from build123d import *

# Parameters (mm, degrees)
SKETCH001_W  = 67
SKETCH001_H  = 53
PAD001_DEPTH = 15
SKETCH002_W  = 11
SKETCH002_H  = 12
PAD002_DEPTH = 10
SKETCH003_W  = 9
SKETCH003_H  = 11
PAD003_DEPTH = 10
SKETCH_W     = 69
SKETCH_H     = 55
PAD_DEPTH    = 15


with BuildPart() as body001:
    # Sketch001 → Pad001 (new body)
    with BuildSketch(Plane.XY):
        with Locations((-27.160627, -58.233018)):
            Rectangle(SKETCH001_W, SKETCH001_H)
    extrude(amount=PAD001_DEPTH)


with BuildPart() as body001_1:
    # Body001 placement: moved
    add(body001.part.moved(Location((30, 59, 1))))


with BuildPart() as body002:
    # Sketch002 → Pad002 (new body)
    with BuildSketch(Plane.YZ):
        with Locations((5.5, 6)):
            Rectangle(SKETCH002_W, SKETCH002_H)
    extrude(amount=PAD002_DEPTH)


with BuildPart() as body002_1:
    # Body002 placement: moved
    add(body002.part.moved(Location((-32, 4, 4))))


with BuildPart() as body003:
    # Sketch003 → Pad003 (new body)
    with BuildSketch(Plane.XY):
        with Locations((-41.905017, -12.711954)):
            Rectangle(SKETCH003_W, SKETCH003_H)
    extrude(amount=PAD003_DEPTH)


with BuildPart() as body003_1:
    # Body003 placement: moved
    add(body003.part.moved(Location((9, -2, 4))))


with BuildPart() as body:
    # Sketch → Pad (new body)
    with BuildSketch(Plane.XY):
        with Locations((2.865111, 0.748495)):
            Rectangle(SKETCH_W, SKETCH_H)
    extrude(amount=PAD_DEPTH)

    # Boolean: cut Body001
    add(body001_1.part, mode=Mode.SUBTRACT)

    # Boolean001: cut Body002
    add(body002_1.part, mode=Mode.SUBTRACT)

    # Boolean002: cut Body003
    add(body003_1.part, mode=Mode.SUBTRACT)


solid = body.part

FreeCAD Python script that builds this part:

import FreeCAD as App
import Part
import Sketcher

V = App.Vector

doc = App.newDocument("Part")
body = doc.addObject("PartDesign::Body", "Body")

# Sketch on XY plane
sketch1 = body.newObject("Sketcher::SketchObject", "Sketch")
sketch1.AttachmentSupport = (doc.getObject("XY_Plane"), [""])
sketch1.MapMode = "FlatFace"
sketch1.addGeometry([
    Part.LineSegment(V(-61, -32, 0), V(-61, -85, 0)),
    Part.LineSegment(V(-61, -85, 0), V(6, -85, 0)),
    Part.LineSegment(V(6, -85, 0), V(6, -32, 0)),
    Part.LineSegment(V(6, -32, 0), V(-61, -32, 0)),
], False)
sketch1.addConstraint([
    Sketcher.Constraint("Coincident", 0, 2, 1, 1),
    Sketcher.Constraint("Coincident", 1, 2, 2, 1),
    Sketcher.Constraint("Coincident", 2, 2, 3, 1),
    Sketcher.Constraint("Coincident", 3, 2, 0, 1),
    Sketcher.Constraint("Vertical", 0),
    Sketcher.Constraint("Horizontal", 1),
    Sketcher.Constraint("Vertical", 2),
    Sketcher.Constraint("Horizontal", 3),
    Sketcher.Constraint("DistanceX", 1, 1, 1, 2, 67.0),
    Sketcher.Constraint("DistanceY", 0, 2, 0, 1, 53.0),
    Sketcher.Constraint("DistanceY", 0, 2, -1, 1, 84.733018),
    Sketcher.Constraint("DistanceX", 0, 2, -1, 1, 60.660627),
])
pad1 = body.newObject("PartDesign::Pad", "Pad")
pad1.Profile = sketch1
pad1.Length = 15
body2 = doc.addObject("PartDesign::Body", "Body001")
doc.recompute()

body.Placement = App.Placement(V(30, 59, 1), App.Rotation(V(0, 0, 1), 0))
boolean = body2.newObject("PartDesign::Boolean", "Boolean")
boolean.Type = "Fuse"
boolean.addObjects([body])
body3 = doc.addObject("PartDesign::Body", "Body002")

# Sketch on YZ plane
sketch2 = body3.newObject("Sketcher::SketchObject", "Sketch001")
sketch2.AttachmentSupport = (doc.getObject("YZ_Plane002"), [""])
sketch2.MapMode = "FlatFace"
sketch2.addGeometry([
    Part.LineSegment(V(0, 12, 0), V(0, 0, 0)),
    Part.LineSegment(V(0, 0, 0), V(11, 0, 0)),
    Part.LineSegment(V(11, 0, 0), V(11, 12, 0)),
    Part.LineSegment(V(11, 12, 0), V(0, 12, 0)),
], False)
sketch2.addConstraint([
    Sketcher.Constraint("Coincident", 0, 2, 1, 1),
    Sketcher.Constraint("Coincident", 1, 2, 2, 1),
    Sketcher.Constraint("Coincident", 2, 2, 3, 1),
    Sketcher.Constraint("Coincident", 3, 2, 0, 1),
    Sketcher.Constraint("Vertical", 0),
    Sketcher.Constraint("Horizontal", 1),
    Sketcher.Constraint("Vertical", 2),
    Sketcher.Constraint("Horizontal", 3),
    Sketcher.Constraint("Coincident", 0, 2, -1, 1),
    Sketcher.Constraint("DistanceX", 1, 1, 1, 2, 11.0),
    Sketcher.Constraint("DistanceY", 0, 2, 0, 1, 12.0),
])
pad2 = body3.newObject("PartDesign::Pad", "Pad001")
pad2.Profile = sketch2
pad2.Length = 10
body4 = doc.addObject("PartDesign::Body", "Body003")
doc.recompute()

body3.Placement = App.Placement(V(-32, 4, 4), App.Rotation(V(0, 0, 1), 0))
boolean2 = body4.newObject("PartDesign::Boolean", "Boolean001")
boolean2.Type = "Fuse"
boolean2.addObjects([body3])
body5 = doc.addObject("PartDesign::Body", "Body004")

# Sketch on XY plane
sketch3 = body5.newObject("Sketcher::SketchObject", "Sketch002")
sketch3.AttachmentSupport = (doc.getObject("XY_Plane004"), [""])
sketch3.MapMode = "FlatFace"
sketch3.addGeometry([
    Part.LineSegment(V(-46, -7, 0), V(-46, -18, 0)),
    Part.LineSegment(V(-46, -18, 0), V(-37, -18, 0)),
    Part.LineSegment(V(-37, -18, 0), V(-37, -7, 0)),
    Part.LineSegment(V(-37, -7, 0), V(-46, -7, 0)),
], False)
sketch3.addConstraint([
    Sketcher.Constraint("Coincident", 0, 2, 1, 1),
    Sketcher.Constraint("Coincident", 1, 2, 2, 1),
    Sketcher.Constraint("Coincident", 2, 2, 3, 1),
    Sketcher.Constraint("Coincident", 3, 2, 0, 1),
    Sketcher.Constraint("Vertical", 0),
    Sketcher.Constraint("Horizontal", 1),
    Sketcher.Constraint("Vertical", 2),
    Sketcher.Constraint("Horizontal", 3),
    Sketcher.Constraint("DistanceX", 1, 1, 1, 2, 9.0),
    Sketcher.Constraint("DistanceY", 0, 2, 0, 1, 11.0),
    Sketcher.Constraint("DistanceX", 0, 2, -1, 1, 46.405017),
    Sketcher.Constraint("DistanceY", 0, 2, -1, 1, 18.211954),
])
pad3 = body5.newObject("PartDesign::Pad", "Pad002")
pad3.Profile = sketch3
pad3.Length = 10
body6 = doc.addObject("PartDesign::Body", "Body005")
doc.recompute()

body5.Placement = App.Placement(V(9, -2, 4), App.Rotation(V(0, 0, 1), 0))
boolean3 = body6.newObject("PartDesign::Boolean", "Boolean002")
boolean3.Type = "Fuse"
boolean3.addObjects([body5])
body7 = doc.addObject("PartDesign::Body", "Body006")

# Sketch on XY plane
sketch4 = body7.newObject("Sketcher::SketchObject", "Sketch003")
sketch4.AttachmentSupport = (doc.getObject("XY_Plane006"), [""])
sketch4.MapMode = "FlatFace"
sketch4.addGeometry([
    Part.LineSegment(V(-32, 28, 0), V(-32, -27, 0)),
    Part.LineSegment(V(-32, -27, 0), V(37, -27, 0)),
    Part.LineSegment(V(37, -27, 0), V(37, 28, 0)),
    Part.LineSegment(V(37, 28, 0), V(-32, 28, 0)),
], False)
sketch4.addConstraint([
    Sketcher.Constraint("Coincident", 0, 2, 1, 1),
    Sketcher.Constraint("Coincident", 1, 2, 2, 1),
    Sketcher.Constraint("Coincident", 2, 2, 3, 1),
    Sketcher.Constraint("Coincident", 3, 2, 0, 1),
    Sketcher.Constraint("Vertical", 0),
    Sketcher.Constraint("Horizontal", 1),
    Sketcher.Constraint("Vertical", 2),
    Sketcher.Constraint("Horizontal", 3),
    Sketcher.Constraint("DistanceX", 1, 1, 1, 2, 69.0),
    Sketcher.Constraint("DistanceY", 0, 2, 0, 1, 55.0),
    Sketcher.Constraint("DistanceX", 0, 2, -1, 1, 31.634889),
    Sketcher.Constraint("DistanceY", 0, 2, -1, 1, 26.751505),
])
pad4 = body7.newObject("PartDesign::Pad", "Pad003")
pad4.Profile = sketch4
pad4.Length = 15
doc.recompute()

boolean4 = body7.newObject("PartDesign::Boolean", "Boolean003")
boolean4.Type = "Cut"
boolean4.addObjects([body2])
doc.recompute()

boolean5 = body7.newObject("PartDesign::Boolean", "Boolean004")
boolean5.Type = "Cut"
boolean5.addObjects([body4])
doc.recompute()

boolean6 = body7.newObject("PartDesign::Boolean", "Boolean005")
boolean6.Type = "Cut"
boolean6.addObjects([body6])

doc.recompute()
